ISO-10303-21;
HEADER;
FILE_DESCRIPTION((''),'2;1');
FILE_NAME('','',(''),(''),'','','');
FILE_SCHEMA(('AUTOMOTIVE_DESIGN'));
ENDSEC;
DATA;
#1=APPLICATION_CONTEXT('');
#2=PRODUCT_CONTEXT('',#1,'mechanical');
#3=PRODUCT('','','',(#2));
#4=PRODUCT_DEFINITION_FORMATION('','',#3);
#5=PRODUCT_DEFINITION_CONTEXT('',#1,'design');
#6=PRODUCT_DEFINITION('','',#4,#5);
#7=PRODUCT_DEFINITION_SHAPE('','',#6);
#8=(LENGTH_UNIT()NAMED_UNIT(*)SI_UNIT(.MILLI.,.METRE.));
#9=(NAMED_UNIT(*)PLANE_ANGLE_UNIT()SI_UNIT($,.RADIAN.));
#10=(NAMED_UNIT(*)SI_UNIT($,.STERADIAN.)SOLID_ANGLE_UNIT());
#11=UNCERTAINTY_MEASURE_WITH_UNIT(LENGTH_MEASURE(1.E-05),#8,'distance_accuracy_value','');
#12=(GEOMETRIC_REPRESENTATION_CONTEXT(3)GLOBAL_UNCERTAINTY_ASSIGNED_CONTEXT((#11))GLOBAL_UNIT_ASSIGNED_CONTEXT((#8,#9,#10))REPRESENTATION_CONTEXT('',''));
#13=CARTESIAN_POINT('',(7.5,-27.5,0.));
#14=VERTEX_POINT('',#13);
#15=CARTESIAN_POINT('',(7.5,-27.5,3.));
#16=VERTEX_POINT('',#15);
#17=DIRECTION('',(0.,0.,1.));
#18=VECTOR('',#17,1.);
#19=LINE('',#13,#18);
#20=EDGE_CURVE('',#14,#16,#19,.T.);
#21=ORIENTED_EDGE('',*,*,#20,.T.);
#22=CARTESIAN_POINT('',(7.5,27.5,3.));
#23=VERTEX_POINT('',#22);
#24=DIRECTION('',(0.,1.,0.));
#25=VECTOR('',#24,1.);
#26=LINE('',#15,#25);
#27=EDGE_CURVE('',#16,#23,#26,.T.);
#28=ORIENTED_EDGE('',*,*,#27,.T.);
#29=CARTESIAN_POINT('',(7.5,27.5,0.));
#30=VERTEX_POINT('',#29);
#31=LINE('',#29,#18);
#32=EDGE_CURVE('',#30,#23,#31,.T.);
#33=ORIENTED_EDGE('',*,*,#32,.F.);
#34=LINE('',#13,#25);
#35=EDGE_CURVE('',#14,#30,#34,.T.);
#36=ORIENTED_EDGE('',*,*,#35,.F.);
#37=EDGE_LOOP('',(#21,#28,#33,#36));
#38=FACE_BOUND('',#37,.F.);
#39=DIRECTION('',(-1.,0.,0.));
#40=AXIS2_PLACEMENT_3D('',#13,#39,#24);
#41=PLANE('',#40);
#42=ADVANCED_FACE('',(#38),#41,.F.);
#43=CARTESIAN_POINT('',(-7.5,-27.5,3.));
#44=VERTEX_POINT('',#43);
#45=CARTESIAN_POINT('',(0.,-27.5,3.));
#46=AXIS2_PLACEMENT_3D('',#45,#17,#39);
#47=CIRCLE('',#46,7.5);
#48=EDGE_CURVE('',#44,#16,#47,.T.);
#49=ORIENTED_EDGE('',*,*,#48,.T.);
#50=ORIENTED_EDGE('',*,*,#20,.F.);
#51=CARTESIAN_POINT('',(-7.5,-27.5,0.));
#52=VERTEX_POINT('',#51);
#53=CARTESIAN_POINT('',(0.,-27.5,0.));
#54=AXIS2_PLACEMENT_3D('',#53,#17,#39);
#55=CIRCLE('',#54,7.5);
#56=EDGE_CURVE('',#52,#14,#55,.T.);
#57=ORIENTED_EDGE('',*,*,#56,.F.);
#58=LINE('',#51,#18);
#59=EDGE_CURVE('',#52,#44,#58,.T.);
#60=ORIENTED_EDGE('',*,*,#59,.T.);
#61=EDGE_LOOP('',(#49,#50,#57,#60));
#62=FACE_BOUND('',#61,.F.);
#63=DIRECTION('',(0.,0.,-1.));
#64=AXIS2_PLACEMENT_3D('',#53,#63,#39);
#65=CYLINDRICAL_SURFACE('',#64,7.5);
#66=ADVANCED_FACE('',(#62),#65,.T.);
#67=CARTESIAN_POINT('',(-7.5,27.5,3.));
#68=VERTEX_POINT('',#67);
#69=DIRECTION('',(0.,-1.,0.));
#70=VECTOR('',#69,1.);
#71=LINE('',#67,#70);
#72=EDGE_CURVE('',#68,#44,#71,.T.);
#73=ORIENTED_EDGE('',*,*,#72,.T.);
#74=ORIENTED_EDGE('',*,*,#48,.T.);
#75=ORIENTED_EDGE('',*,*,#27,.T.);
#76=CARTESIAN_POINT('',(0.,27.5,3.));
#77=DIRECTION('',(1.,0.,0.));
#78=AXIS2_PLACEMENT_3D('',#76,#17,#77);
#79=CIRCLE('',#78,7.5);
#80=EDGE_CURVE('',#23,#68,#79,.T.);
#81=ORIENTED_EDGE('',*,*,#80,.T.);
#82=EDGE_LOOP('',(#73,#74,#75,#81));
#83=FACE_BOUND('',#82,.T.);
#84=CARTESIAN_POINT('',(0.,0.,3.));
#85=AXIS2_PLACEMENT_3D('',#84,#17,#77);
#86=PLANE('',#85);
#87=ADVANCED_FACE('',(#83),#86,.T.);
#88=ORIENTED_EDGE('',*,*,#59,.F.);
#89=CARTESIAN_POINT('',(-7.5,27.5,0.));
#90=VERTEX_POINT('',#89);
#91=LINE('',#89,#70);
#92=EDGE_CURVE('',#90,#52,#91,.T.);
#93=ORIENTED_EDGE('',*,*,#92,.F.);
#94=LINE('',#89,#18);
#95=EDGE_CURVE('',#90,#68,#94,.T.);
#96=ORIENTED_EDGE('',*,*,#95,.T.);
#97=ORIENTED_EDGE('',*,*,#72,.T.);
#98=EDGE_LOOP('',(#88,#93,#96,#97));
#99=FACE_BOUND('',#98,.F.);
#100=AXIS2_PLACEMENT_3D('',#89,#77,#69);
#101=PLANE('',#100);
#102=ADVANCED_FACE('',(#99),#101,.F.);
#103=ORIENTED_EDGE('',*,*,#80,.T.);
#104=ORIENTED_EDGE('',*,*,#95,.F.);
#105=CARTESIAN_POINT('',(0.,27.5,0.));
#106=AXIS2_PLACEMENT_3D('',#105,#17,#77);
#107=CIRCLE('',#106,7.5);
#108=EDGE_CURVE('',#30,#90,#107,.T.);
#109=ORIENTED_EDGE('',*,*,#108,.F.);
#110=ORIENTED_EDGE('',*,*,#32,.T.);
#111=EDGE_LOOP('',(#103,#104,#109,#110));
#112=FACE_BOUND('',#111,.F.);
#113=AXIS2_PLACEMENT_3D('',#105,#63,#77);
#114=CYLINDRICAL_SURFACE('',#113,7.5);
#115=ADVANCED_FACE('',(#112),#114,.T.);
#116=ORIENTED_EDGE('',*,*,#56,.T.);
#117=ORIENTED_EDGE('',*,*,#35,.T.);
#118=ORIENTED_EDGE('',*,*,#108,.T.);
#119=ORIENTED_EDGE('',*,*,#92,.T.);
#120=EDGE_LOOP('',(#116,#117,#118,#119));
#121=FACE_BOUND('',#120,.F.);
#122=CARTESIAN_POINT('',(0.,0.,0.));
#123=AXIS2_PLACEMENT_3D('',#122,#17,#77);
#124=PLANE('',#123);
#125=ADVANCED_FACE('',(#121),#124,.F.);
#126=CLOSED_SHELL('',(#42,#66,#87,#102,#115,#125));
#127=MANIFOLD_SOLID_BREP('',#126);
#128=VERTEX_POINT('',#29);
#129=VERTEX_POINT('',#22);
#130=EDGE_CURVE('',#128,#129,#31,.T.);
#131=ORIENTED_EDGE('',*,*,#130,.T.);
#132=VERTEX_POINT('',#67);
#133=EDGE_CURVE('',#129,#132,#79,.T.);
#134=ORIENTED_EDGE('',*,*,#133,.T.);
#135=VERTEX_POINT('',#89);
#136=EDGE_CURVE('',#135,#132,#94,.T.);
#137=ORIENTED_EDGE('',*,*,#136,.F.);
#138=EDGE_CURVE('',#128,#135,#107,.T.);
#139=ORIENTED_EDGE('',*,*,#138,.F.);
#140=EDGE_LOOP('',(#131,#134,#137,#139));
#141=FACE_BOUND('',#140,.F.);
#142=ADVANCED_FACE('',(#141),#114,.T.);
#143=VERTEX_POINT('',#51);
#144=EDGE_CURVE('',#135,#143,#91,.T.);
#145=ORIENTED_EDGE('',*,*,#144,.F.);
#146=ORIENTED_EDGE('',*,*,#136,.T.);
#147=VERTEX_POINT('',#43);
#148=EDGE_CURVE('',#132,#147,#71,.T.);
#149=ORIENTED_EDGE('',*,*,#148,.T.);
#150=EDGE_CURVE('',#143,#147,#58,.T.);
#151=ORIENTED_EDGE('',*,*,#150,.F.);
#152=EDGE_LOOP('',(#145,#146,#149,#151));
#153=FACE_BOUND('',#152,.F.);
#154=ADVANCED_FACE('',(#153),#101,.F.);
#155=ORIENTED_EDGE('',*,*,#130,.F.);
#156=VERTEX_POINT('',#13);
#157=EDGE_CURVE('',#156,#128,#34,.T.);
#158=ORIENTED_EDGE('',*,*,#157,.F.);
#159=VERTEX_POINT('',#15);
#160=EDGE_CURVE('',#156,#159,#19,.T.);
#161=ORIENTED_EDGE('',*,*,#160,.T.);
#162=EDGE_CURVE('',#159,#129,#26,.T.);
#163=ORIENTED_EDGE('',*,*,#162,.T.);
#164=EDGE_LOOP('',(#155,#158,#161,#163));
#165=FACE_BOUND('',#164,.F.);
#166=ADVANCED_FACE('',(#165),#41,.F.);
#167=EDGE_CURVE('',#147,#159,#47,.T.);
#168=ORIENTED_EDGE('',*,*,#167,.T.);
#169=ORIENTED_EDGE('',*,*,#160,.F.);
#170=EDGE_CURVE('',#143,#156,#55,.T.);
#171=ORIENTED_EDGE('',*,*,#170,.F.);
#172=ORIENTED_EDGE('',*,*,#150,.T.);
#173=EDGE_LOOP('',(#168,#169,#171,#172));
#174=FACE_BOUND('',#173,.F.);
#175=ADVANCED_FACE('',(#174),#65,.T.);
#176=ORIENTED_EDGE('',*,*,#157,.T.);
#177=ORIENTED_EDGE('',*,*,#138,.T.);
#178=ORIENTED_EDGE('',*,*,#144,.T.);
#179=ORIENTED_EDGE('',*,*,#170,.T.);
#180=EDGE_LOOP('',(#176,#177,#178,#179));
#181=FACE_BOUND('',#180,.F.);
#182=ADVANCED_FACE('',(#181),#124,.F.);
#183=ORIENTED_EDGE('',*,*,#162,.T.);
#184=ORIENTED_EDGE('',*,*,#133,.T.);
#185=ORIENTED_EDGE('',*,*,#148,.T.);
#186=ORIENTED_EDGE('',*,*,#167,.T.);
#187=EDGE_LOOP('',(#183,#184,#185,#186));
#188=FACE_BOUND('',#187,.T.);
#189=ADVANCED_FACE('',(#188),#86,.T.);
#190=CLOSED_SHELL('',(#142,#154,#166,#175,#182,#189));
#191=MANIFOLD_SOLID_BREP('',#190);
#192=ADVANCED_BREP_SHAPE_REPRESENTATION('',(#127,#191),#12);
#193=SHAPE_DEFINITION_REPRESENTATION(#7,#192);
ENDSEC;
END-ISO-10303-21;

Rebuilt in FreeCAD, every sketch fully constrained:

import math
import FreeCAD as App
import Part
import Sketcher
Q = App.Units.Quantity

doc = App.newDocument("Part")
body = doc.addObject("PartDesign::Body", "Body")

# Sketch on XY plane
sketch1 = body.newObject("Sketcher::SketchObject", "Sketch")
sketch1.AttachmentSupport = (doc.getObject("XY_Plane"), [""])
sketch1.MapMode = "FlatFace"
sketch1.addGeometry([
    Part.ArcOfCircle(Part.Circle(App.Vector(0, 28, 0), App.Vector(0, 0, 1), 8), math.radians(0), math.radians(180)),
    Part.LineSegment(App.Vector(-8, 28, 0), App.Vector(-8, -28, 0)),
    Part.ArcOfCircle(Part.Circle(App.Vector(0, -28, 0), App.Vector(0, 0, 1), 8), math.radians(180), math.radians(360)),
    Part.LineSegment(App.Vector(8, -28, 0), App.Vector(8, 28, 0)),
], False)
sketch1.addConstraint([
    Sketcher.Constraint("Tangent", 0, 2, 1, 1),
    Sketcher.Constraint("Tangent", 1, 2, 2, 1),
    Sketcher.Constraint("Tangent", 2, 2, 3, 1),
    Sketcher.Constraint("Tangent", 3, 2, 0, 1),
    Sketcher.Constraint("Vertical", 1),
    Sketcher.Constraint("Vertical", 3),
    Sketcher.Constraint("Symmetric", 0, 3, 2, 3, -1, 1),
    Sketcher.Constraint("Radius", 0, Q("7.5 mm")),
    Sketcher.Constraint("DistanceY", 1, 2, 1, 1, Q("55 mm")),
])
pad1 = body.newObject("PartDesign::Pad", "Pad")
pad1.Profile = sketch1
pad1.Length = 3
body2 = doc.addObject("PartDesign::Body", "Body001")

# Sketch on XY plane
sketch2 = body2.newObject("Sketcher::SketchObject", "Sketch001")
sketch2.AttachmentSupport = (doc.getObject("XY_Plane001"), [""])
sketch2.MapMode = "FlatFace"
sketch2.addGeometry([
    Part.ArcOfCircle(Part.Circle(App.Vector(0, 28, 0), App.Vector(0, 0, 1), 8), math.radians(0), math.radians(180)),
    Part.LineSegment(App.Vector(-8, 28, 0), App.Vector(-8, -28, 0)),
    Part.ArcOfCircle(Part.Circle(App.Vector(0, -28, 0), App.Vector(0, 0, 1), 8), math.radians(180), math.radians(360)),
    Part.LineSegment(App.Vector(8, -28, 0), App.Vector(8, 28, 0)),
], False)
sketch2.addConstraint([
    Sketcher.Constraint("Tangent", 0, 2, 1, 1),
    Sketcher.Constraint("Tangent", 1, 2, 2, 1),
    Sketcher.Constraint("Tangent", 2, 2, 3, 1),
    Sketcher.Constraint("Tangent", 3, 2, 0, 1),
    Sketcher.Constraint("Vertical", 1),
    Sketcher.Constraint("Vertical", 3),
    Sketcher.Constraint("Symmetric", 0, 3, 2, 3, -1, 1),
    Sketcher.Constraint("Radius", 0, Q("7.5 mm")),
    Sketcher.Constraint("DistanceY", 1, 2, 1, 1, Q("55 mm")),
])
pad2 = body2.newObject("PartDesign::Pad", "Pad001")
pad2.Profile = sketch2
pad2.Length = 3

doc.recompute()
